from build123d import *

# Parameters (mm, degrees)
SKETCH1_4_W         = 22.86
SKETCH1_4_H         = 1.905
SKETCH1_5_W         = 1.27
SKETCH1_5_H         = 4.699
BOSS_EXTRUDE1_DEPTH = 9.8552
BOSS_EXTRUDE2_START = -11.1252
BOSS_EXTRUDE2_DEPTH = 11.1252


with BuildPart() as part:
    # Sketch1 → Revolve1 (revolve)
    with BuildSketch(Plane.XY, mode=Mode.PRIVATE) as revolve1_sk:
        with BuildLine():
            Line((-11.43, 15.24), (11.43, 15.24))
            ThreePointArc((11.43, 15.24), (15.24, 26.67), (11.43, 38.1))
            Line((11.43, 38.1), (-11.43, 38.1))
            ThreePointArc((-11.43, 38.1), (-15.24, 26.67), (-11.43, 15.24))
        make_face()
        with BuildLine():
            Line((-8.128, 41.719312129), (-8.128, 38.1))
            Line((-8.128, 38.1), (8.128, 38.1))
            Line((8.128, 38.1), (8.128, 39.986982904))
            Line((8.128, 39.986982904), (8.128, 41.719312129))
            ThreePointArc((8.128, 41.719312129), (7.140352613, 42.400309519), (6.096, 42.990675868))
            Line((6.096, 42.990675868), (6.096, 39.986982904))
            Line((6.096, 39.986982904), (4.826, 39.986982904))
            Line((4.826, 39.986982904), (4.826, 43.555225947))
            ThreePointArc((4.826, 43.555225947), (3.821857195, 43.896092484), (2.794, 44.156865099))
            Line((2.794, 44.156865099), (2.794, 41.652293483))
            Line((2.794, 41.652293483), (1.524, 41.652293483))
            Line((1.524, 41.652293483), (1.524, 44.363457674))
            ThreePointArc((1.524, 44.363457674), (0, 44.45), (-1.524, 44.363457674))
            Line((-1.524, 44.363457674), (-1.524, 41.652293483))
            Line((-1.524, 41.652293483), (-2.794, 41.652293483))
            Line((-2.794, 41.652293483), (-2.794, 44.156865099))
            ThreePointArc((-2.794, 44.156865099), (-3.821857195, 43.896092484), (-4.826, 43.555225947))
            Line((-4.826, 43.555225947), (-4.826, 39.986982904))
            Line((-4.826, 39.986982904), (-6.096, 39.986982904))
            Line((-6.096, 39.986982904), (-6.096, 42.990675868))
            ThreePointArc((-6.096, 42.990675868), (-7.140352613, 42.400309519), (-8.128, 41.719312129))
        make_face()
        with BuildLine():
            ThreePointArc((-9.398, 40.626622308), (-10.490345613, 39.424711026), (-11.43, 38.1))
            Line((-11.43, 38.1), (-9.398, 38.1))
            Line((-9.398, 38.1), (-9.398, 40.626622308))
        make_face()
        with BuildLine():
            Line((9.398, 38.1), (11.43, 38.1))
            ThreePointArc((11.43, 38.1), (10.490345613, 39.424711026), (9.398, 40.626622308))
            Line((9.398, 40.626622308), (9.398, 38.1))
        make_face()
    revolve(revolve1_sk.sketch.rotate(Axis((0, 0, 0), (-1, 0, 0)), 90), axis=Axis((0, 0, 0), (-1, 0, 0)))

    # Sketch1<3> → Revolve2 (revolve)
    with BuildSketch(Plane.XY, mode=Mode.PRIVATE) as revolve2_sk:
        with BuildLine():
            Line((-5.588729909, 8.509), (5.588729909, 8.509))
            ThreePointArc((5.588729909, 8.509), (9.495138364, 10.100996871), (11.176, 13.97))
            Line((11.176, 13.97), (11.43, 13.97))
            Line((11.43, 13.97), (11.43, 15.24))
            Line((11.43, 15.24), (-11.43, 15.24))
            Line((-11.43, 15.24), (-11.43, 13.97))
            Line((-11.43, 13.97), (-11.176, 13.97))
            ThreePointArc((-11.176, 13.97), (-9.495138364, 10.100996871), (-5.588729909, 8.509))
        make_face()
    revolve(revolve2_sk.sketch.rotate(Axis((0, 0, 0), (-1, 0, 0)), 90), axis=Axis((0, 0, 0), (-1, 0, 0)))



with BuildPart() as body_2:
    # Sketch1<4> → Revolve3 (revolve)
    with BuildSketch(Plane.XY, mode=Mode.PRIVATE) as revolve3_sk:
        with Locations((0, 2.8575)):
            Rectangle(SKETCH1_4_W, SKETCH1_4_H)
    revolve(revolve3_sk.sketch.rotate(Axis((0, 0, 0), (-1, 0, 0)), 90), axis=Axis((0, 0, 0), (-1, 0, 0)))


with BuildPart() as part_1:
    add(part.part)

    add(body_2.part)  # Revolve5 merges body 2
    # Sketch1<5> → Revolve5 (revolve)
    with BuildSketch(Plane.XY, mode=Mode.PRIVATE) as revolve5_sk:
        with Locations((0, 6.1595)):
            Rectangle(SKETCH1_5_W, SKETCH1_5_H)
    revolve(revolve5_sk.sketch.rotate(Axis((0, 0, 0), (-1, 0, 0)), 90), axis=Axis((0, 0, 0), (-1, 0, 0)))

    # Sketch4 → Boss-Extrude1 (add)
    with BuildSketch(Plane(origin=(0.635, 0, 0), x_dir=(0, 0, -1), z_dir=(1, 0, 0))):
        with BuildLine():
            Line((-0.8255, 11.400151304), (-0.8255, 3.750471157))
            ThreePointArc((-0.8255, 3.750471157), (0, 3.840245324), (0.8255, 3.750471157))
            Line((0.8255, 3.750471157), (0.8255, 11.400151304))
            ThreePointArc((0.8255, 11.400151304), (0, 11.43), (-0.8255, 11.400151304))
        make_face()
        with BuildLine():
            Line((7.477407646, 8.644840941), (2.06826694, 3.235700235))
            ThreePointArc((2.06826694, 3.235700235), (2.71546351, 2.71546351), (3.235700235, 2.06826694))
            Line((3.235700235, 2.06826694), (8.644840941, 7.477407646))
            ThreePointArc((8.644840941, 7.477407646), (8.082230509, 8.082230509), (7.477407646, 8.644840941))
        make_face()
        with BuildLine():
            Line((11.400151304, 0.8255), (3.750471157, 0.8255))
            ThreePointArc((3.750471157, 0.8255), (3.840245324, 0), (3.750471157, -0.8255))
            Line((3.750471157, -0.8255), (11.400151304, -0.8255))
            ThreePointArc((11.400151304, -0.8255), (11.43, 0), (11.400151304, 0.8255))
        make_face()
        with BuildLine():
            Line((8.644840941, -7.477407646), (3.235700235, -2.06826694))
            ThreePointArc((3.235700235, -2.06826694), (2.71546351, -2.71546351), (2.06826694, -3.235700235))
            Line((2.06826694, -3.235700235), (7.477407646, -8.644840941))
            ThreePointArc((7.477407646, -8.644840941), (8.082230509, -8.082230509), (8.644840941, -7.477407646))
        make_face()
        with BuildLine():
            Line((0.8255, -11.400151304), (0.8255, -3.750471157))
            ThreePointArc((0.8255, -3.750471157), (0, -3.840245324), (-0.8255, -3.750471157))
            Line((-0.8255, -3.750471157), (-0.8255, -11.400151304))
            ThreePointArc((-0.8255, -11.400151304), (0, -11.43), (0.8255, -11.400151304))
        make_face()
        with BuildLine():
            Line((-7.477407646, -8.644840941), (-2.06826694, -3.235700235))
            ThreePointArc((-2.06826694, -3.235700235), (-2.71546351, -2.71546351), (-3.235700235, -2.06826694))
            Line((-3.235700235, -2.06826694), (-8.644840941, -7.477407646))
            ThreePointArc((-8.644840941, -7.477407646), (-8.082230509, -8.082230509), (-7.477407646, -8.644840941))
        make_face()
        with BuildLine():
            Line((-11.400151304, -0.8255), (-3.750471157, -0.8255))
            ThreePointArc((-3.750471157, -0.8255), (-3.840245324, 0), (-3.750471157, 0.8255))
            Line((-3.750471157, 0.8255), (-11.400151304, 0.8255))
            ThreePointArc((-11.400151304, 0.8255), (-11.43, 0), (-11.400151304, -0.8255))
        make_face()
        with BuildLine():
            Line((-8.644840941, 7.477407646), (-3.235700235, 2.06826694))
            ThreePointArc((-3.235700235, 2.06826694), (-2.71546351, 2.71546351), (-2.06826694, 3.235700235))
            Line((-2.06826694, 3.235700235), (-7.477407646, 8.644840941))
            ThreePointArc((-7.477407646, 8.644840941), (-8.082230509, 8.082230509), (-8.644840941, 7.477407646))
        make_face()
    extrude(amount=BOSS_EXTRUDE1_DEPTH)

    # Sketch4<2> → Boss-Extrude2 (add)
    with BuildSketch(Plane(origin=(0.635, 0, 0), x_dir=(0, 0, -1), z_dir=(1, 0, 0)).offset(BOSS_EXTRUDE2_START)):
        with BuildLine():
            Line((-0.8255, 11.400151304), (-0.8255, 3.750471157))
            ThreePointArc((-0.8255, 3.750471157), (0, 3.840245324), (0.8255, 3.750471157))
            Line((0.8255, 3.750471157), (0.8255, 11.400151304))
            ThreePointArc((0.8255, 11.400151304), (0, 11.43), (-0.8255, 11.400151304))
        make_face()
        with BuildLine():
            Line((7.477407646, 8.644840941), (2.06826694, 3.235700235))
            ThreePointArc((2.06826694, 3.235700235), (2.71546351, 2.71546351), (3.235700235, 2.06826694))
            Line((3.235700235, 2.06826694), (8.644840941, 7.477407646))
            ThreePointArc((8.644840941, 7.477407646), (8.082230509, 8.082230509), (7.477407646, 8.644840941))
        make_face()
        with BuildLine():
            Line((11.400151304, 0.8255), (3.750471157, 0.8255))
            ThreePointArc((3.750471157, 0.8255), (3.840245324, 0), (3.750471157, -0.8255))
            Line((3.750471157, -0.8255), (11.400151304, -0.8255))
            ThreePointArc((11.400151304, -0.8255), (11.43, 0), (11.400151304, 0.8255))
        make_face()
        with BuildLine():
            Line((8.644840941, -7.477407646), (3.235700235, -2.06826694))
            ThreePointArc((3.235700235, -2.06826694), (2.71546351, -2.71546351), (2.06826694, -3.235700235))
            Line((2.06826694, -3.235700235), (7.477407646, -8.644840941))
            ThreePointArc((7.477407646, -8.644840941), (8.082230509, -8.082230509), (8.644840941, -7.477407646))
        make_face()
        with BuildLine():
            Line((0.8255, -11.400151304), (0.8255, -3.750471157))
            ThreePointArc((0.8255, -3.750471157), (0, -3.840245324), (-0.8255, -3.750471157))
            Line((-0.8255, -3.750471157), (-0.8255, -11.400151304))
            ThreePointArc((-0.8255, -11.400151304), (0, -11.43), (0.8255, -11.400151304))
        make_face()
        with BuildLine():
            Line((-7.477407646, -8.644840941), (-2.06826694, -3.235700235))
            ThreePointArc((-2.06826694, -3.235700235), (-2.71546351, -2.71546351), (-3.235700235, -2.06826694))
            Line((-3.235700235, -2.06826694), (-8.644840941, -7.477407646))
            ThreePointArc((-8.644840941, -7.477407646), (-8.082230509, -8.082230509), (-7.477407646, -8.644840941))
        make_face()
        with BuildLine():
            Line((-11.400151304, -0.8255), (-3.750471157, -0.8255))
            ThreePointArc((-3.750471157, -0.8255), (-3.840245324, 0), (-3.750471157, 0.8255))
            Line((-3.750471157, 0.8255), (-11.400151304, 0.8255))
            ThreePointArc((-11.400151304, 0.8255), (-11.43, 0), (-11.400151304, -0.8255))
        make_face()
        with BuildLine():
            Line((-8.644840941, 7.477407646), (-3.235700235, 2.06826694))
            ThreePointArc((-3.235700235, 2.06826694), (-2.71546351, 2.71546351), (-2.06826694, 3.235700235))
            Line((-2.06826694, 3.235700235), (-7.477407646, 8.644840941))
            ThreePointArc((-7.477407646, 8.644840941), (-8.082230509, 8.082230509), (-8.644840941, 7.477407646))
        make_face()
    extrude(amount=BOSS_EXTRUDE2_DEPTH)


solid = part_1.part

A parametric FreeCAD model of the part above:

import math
import FreeCAD as App
import Part
import Sketcher
from FreeCAD import Vector
Q = App.Units.Quantity

doc = App.newDocument("Part")
body = doc.addObject("PartDesign::Body", "Body")

# Sketch on XY plane
sketch1 = body.newObject("Sketcher::SketchObject", "Sketch")
sketch1.AttachmentSupport = (doc.getObject("XY_Plane"), [""])
sketch1.MapMode = "FlatFace"
sketch1.addGeometry([
    Part.LineSegment(Vector(-11.43, 15.24, 0), Vector(11.43, 15.24, 0)),  # 0
    Part.ArcOfCircle(Part.Circle(Vector(-3.81, 26.67, 0), Vector(0, 0, 1), 19.05), math.radians(-36.869898), math.radians(36.869898)),  # 1
    Part.ArcOfCircle(Part.Circle(Vector(0, 30.988, 0), Vector(0, 0, 1), 13.462), math.radians(31.890792), math.radians(45.724178)),  # 2
    Part.LineSegment(Vector(9.398, 40.626622, 0), Vector(9.398, 38.1, 0)),  # 3
    Part.LineSegment(Vector(9.398, 38.1, 0), Vector(8.128, 38.1, 0)),  # 4
    Part.LineSegment(Vector(8.128, 38.1, 0), Vector(8.128, 41.719312, 0)),  # 5
    Part.ArcOfCircle(Part.Circle(Vector(0, 30.988, 0), Vector(0, 0, 1), 13.462), math.radians(52.859359), math.radians(63.074589)),  # 6
    Part.LineSegment(Vector(6.096, 42.990676, 0), Vector(6.096, 39.986983, 0)),  # 7
    Part.LineSegment(Vector(6.096, 39.986983, 0), Vector(4.826, 39.986983, 0)),  # 8
    Part.LineSegment(Vector(4.826, 39.986983, 0), Vector(4.826, 43.555226, 0)),  # 9
    Part.ArcOfCircle(Part.Circle(Vector(0, 30.988, 0), Vector(0, 0, 1), 13.462), math.radians(68.992475), math.radians(78.021351)),  # 10
    Part.LineSegment(Vector(2.794, 44.156865, 0), Vector(2.794, 41.652293, 0)),  # 11
    Part.LineSegment(Vector(2.794, 41.652293, 0), Vector(1.524, 41.652293, 0)),  # 12
    Part.LineSegment(Vector(1.524, 41.652293, 0), Vector(1.524, 44.363458, 0)),  # 13
    Part.ArcOfCircle(Part.Circle(Vector(0, 30.988, 0), Vector(0, 0, 1), 13.462), math.radians(83.49975), math.radians(96.50025)),  # 14
    Part.LineSegment(Vector(-1.524, 44.363458, 0), Vector(-1.524, 41.652293, 0)),  # 15
    Part.LineSegment(Vector(-1.524, 41.652293, 0), Vector(-2.794, 41.652293, 0)),  # 16
    Part.LineSegment(Vector(-2.794, 41.652293, 0), Vector(-2.794, 44.156865, 0)),  # 17
    Part.ArcOfCircle(Part.Circle(Vector(0, 30.988, 0), Vector(0, 0, 1), 13.462), math.radians(101.978649), math.radians(111.007525)),  # 18
    Part.LineSegment(Vector(-4.826, 43.555226, 0), Vector(-4.826, 39.986983, 0)),  # 19
    Part.LineSegment(Vector(-4.826, 39.986983, 0), Vector(-6.096, 39.986983, 0)),  # 20
    Part.LineSegment(Vector(-6.096, 39.986983, 0), Vector(-6.096, 42.990676, 0)),  # 21
    Part.ArcOfCircle(Part.Circle(Vector(0, 30.988, 0), Vector(0, 0, 1), 13.462), math.radians(116.925411), math.radians(127.140641)),  # 22
    Part.LineSegment(Vector(-8.128, 41.719312, 0), Vector(-8.128, 38.1, 0)),  # 23
    Part.LineSegment(Vector(-8.128, 38.1, 0), Vector(-9.398, 38.1, 0)),  # 24
    Part.LineSegment(Vector(-9.398, 38.1, 0), Vector(-9.398, 40.626622, 0)),  # 25
    Part.ArcOfCircle(Part.Circle(Vector(0, 30.988, 0), Vector(0, 0, 1), 13.462), math.radians(134.275822), math.radians(148.109208)),  # 26
    Part.ArcOfCircle(Part.Circle(Vector(3.81, 26.67, 0), Vector(0, 0, 1), 19.05), math.radians(143.130102), math.radians(216.869898)),  # 27
], False)
sketch1.addConstraint([
    Sketcher.Constraint("Coincident", 0, 2, 1, 1),
    Sketcher.Constraint("Coincident", 1, 2, 2, 1),
    Sketcher.Constraint("Coincident", 2, 2, 3, 1),
    Sketcher.Constraint("Coincident", 3, 2, 4, 1),
    Sketcher.Constraint("Coincident", 4, 2, 5, 1),
    Sketcher.Constraint("Coincident", 5, 2, 6, 1),
    Sketcher.Constraint("Coincident", 6, 2, 7, 1),
    Sketcher.Constraint("Coincident", 7, 2, 8, 1),
    Sketcher.Constraint("Coincident", 8, 2, 9, 1),
    Sketcher.Constraint("Coincident", 9, 2, 10, 1),
    Sketcher.Constraint("Coincident", 10, 2, 11, 1),
    Sketcher.Constraint("Coincident", 11, 2, 12, 1),
    Sketcher.Constraint("Coincident", 12, 2, 13, 1),
    Sketcher.Constraint("Coincident", 13, 2, 14, 1),
    Sketcher.Constraint("Coincident", 14, 2, 15, 1),
    Sketcher.Constraint("Coincident", 15, 2, 16, 1),
    Sketcher.Constraint("Coincident", 16, 2, 17, 1),
    Sketcher.Constraint("Coincident", 17, 2, 18, 1),
    Sketcher.Constraint("Coincident", 18, 2, 19, 1),
    Sketcher.Constraint("Coincident", 19, 2, 20, 1),
    Sketcher.Constraint("Coincident", 20, 2, 21, 1),
    Sketcher.Constraint("Coincident", 21, 2, 22, 1),
    Sketcher.Constraint("Coincident", 22, 2, 23, 1),
    Sketcher.Constraint("Coincident", 23, 2, 24, 1),
    Sketcher.Constraint("Coincident", 24, 2, 25, 1),
    Sketcher.Constraint("Coincident", 25, 2, 26, 1),
    Sketcher.Constraint("Coincident", 26, 2, 27, 1),
    Sketcher.Constraint("Coincident", 27, 2, 0, 1),
    Sketcher.Constraint("Horizontal", 0),
    Sketcher.Constraint("Vertical", 3),
    Sketcher.Constraint("Horizontal", 4),
    Sketcher.Constraint("Vertical", 5),
    Sketcher.Constraint("Vertical", 7),
    Sketcher.Constraint("Horizontal", 8),
    Sketcher.Constraint("Vertical", 9),
    Sketcher.Constraint("Vertical", 11),
    Sketcher.Constraint("Horizontal", 12),
    Sketcher.Constraint("Vertical", 13),
    Sketcher.Constraint("Vertical", 15),
    Sketcher.Constraint("Horizontal", 16),
    Sketcher.Constraint("Vertical", 17),
    Sketcher.Constraint("Vertical", 19),
    Sketcher.Constraint("Horizontal", 20),
    Sketcher.Constraint("Vertical", 21),
    Sketcher.Constraint("Vertical", 23),
    Sketcher.Constraint("Horizontal", 24),
    Sketcher.Constraint("Vertical", 25),
    Sketcher.Constraint("Coincident", 6, 3, 2, 3),
    Sketcher.Constraint("Coincident", 10, 3, 2, 3),
    Sketcher.Constraint("Coincident", 14, 3, 2, 3),
    Sketcher.Constraint("Coincident", 18, 3, 2, 3),
    Sketcher.Constraint("Coincident", 22, 3, 2, 3),
    Sketcher.Constraint("Coincident", 26, 3, 2, 3),
    Sketcher.Constraint("Equal", 2, 6),
    Sketcher.Constraint("Equal", 6, 10),
    Sketcher.Constraint("Equal", 10, 14),
    Sketcher.Constraint("Equal", 14, 18),
    Sketcher.Constraint("Equal", 18, 22),
    Sketcher.Constraint("Equal", 22, 26),
    Sketcher.Constraint("Equal", 1, 27),
    Sketcher.Constraint("Symmetric", 1, 3, 27, 3, -2),
    Sketcher.Constraint("Symmetric", 13, 2, 14, 2, -2),
    Sketcher.Constraint("Symmetric", 11, 2, 16, 2, -2),
    Sketcher.Constraint("Symmetric", 8, 2, 19, 2, -2),
    Sketcher.Constraint("Symmetric", 4, 2, 23, 2, -2),
    Sketcher.Constraint("Horizontal", 1, 2, 3, 2),
    Sketcher.Constraint("Horizontal", 6, 2, 21, 2),
    Sketcher.Constraint("Horizontal", 2, 2, 25, 2),
    Sketcher.Constraint("Vertical", 0, 2, 1, 2),
    Sketcher.Constraint("Equal", 4, 8),
    Sketcher.Constraint("Equal", 8, 12),
    Sketcher.Constraint("Radius", 1, Q("0.75 in")),
    Sketcher.Constraint("Radius", 2, Q("0.53 in")),
    Sketcher.Constraint("DistanceX", 0, 1, 0, 2, Q("0.9 in")),
    Sketcher.Constraint("DistanceX", 4, 2, 4, 1, Q("0.05 in")),
    Sketcher.Constraint("DistanceY", -1, 1, 0, 2, Q("0.6 in")),
    Sketcher.Constraint("DistanceY", -1, 1, 1, 2, Q("1.5 in")),
    Sketcher.Constraint("DistanceX", -1, 1, 2, 2, Q("0.37 in")),
    Sketcher.Constraint("DistanceX", -1, 1, 6, 2, Q("0.24 in")),
    Sketcher.Constraint("DistanceX", -1, 1, 10, 2, Q("0.11 in")),
    Sketcher.Constraint("DistanceY", 11, 2, 11, 1, Q("2.504572 mm")),
    Sketcher.Constraint("DistanceY", 7, 2, 7, 1, Q("3.003693 mm")),
])
revolution = body.newObject("PartDesign::Revolution", "Revolution")
revolution.Profile = sketch1
revolution.ReferenceAxis = (sketch1, ["H_Axis"])
revolution.Angle = 360

# Sketch on XY plane
sketch2 = body.newObject("Sketcher::SketchObject", "Sketch001")
sketch2.AttachmentSupport = (doc.getObject("XY_Plane"), [""])
sketch2.MapMode = "FlatFace"
sketch2.addGeometry([
    Part.LineSegment(Vector(-5.58873, 8.509, 0), Vector(5.58873, 8.509, 0)),  # 0
    Part.ArcOfCircle(Part.Circle(Vector(5.58873, 14.09773, 0), Vector(0, 0, 1), 5.58873), math.radians(-90), math.radians(-1.309604)),  # 1
    Part.LineSegment(Vector(11.176, 13.97, 0), Vector(11.43, 13.97, 0)),  # 2
    Part.LineSegment(Vector(11.43, 13.97, 0), Vector(11.43, 15.24, 0)),  # 3
    Part.LineSegment(Vector(11.43, 15.24, 0), Vector(-11.43, 15.24, 0)),  # 4
    Part.LineSegment(Vector(-11.43, 15.24, 0), Vector(-11.43, 13.97, 0)),  # 5
    Part.LineSegment(Vector(-11.43, 13.97, 0), Vector(-11.176, 13.97, 0)),  # 6
    Part.ArcOfCircle(Part.Circle(Vector(-5.58873, 14.09773, 0), Vector(0, 0, 1), 5.58873), math.radians(-178.690396), math.radians(-90)),  # 7
], False)
sketch2.addConstraint([
    Sketcher.Constraint("Tangent", 0, 2, 1, 1),
    Sketcher.Constraint("Coincident", 1, 2, 2, 1),
    Sketcher.Constraint("Coincident", 2, 2, 3, 1),
    Sketcher.Constraint("Coincident", 3, 2, 4, 1),
    Sketcher.Constraint("Coincident", 4, 2, 5, 1),
    Sketcher.Constraint("Coincident", 5, 2, 6, 1),
    Sketcher.Constraint("Coincident", 6, 2, 7, 1),
    Sketcher.Constraint("Tangent", 7, 2, 0, 1),
    Sketcher.Constraint("Horizontal", 0),
    Sketcher.Constraint("Horizontal", 2),
    Sketcher.Constraint("Vertical", 3),
    Sketcher.Constraint("Horizontal", 4),
    Sketcher.Constraint("Vertical", 5),
    Sketcher.Constraint("Horizontal", 6),
    Sketcher.Constraint("Equal", 1, 7),
    Sketcher.Constraint("Symmetric", 2, 2, 5, 2, -2),
    Sketcher.Constraint("Equal", 2, 6),
    Sketcher.Constraint("DistanceX", 4, 2, 4, 1, Q("0.9 in")),
    Sketcher.Constraint("DistanceX", 2, 1, 2, 2, Q("0.01 in")),
    Sketcher.Constraint("DistanceY", 3, 1, 3, 2, Q("0.05 in")),
    Sketcher.Constraint("DistanceY", -1, 1, 3, 2, Q("0.6 in")),
    Sketcher.Constraint("DistanceY", -1, 1, 0, 2, Q("0.335 in")),
    Sketcher.Constraint("Radius", 1, Q("5.58873 mm")),
])
revolution2 = body.newObject("PartDesign::Revolution", "Revolution001")
revolution2.Profile = sketch2
revolution2.ReferenceAxis = (sketch2, ["H_Axis"])
revolution2.Angle = 360
body2 = doc.addObject("PartDesign::Body", "Body001")

# Sketch on XY plane
sketch3 = body2.newObject("Sketcher::SketchObject", "Sketch002")
sketch3.AttachmentSupport = (doc.getObject("XY_Plane001"), [""])
sketch3.MapMode = "FlatFace"
sketch3.addGeometry([
    Part.LineSegment(Vector(-11.43, 3.81, 0), Vector(-11.43, 1.905, 0)),
    Part.LineSegment(Vector(-11.43, 1.905, 0), Vector(11.43, 1.905, 0)),
    Part.LineSegment(Vector(11.43, 1.905, 0), Vector(11.43, 3.81, 0)),
    Part.LineSegment(Vector(11.43, 3.81, 0), Vector(-11.43, 3.81, 0)),
], False)
sketch3.addConstraint([
    Sketcher.Constraint("Coincident", 0, 2, 1, 1),
    Sketcher.Constraint("Coincident", 1, 2, 2, 1),
    Sketcher.Constraint("Coincident", 2, 2, 3, 1),
    Sketcher.Constraint("Coincident", 3, 2, 0, 1),
    Sketcher.Constraint("Vertical", 0),
    Sketcher.Constraint("Horizontal", 1),
    Sketcher.Constraint("Vertical", 2),
    Sketcher.Constraint("Horizontal", 3),
    Sketcher.Constraint("DistanceX", 1, 1, 1, 2, Q("0.9 in")),
    Sketcher.Constraint("DistanceY", 0, 2, 0, 1, Q("0.075 in")),
    Sketcher.Constraint("DistanceX", 0, 2, -1, 1, Q("0.45 in")),
    Sketcher.Constraint("DistanceY", -1, 1, 2, 2, Q("0.15 in")),
])
revolution3 = body2.newObject("PartDesign::Revolution", "Revolution002")
revolution3.Profile = sketch3
revolution3.ReferenceAxis = (sketch3, ["H_Axis"])
revolution3.Angle = 360
body.AllowCompound = True
doc.recompute()

boolean = body.newObject("PartDesign::Boolean", "Boolean")
boolean.Type = "Fuse"
boolean.addObjects([body2])

# Sketch on XY plane
sketch4 = body.newObject("Sketcher::SketchObject", "Sketch003")
sketch4.AttachmentSupport = (doc.getObject("XY_Plane"), [""])
sketch4.MapMode = "FlatFace"
sketch4.addGeometry([
    Part.LineSegment(Vector(-0.635, 8.509, 0), Vector(-0.635, 3.81, 0)),
    Part.LineSegment(Vector(-0.635, 3.81, 0), Vector(0.635, 3.81, 0)),
    Part.LineSegment(Vector(0.635, 3.81, 0), Vector(0.635, 8.509, 0)),
    Part.LineSegment(Vector(0.635, 8.509, 0), Vector(-0.635, 8.509, 0)),
], False)
sketch4.addConstraint([
    Sketcher.Constraint("Coincident", 0, 2, 1, 1),
    Sketcher.Constraint("Coincident", 1, 2, 2, 1),
    Sketcher.Constraint("Coincident", 2, 2, 3, 1),
    Sketcher.Constraint("Coincident", 3, 2, 0, 1),
    Sketcher.Constraint("Vertical", 0),
    Sketcher.Constraint("Horizontal", 1),
    Sketcher.Constraint("Vertical", 2),
    Sketcher.Constraint("Horizontal", 3),
    Sketcher.Constraint("DistanceX", 1, 1, 1, 2, Q("0.05 in")),
    Sketcher.Constraint("DistanceY", 0, 2, 0, 1, Q("0.185 in")),
    Sketcher.Constraint("DistanceY", -1, 1, 0, 2, Q("0.15 in")),
    Sketcher.Constraint("DistanceX", 0, 2, -1, 1, Q("0.025 in")),
])
revolution4 = body.newObject("PartDesign::Revolution", "Revolution003")
revolution4.Profile = sketch4
revolution4.ReferenceAxis = (sketch4, ["H_Axis"])
revolution4.Angle = 360

# Sketch on YZ plane
sketch5 = body.newObject("Sketcher::SketchObject", "Sketch004")
sketch5.AttachmentSupport = (doc.getObject("YZ_Plane"), [""])
sketch5.MapMode = "FlatFace"
sketch5.AttachmentOffset = App.Placement(Vector(0, 0, 0.025 * 25.4), App.Rotation())
sketch5.addGeometry([
    Part.LineSegment(Vector(11.400151, 0.8255, 0), Vector(3.750471, 0.8255, 0)),  # 0
    Part.ArcOfCircle(Part.Circle(Vector(0, 0, 0), Vector(0, 0, 1), 3.840245), math.radians(-12.413194), math.radians(12.413194)),  # 1
    Part.LineSegment(Vector(3.750471, -0.8255, 0), Vector(11.400151, -0.8255, 0)),  # 2
    Part.ArcOfCircle(Part.Circle(Vector(0, 0, 0), Vector(0, 0, 1), 11.43), math.radians(-4.141634), math.radians(4.141634)),  # 3
    Part.LineSegment(Vector(8.644841, -7.477408, 0), Vector(3.2357, -2.068267, 0)),  # 4
    Part.ArcOfCircle(Part.Circle(Vector(0, 0, 0), Vector(0, 0, 1), 3.840245), math.radians(-57.413194), math.radians(-32.586806)),  # 5
    Part.LineSegment(Vector(2.068267, -3.2357, 0), Vector(7.477408, -8.644841, 0)),  # 6
    Part.ArcOfCircle(Part.Circle(Vector(0, 0, 0), Vector(0, 0, 1), 11.43), math.radians(-49.141634), math.radians(-40.858366)),  # 7
    Part.LineSegment(Vector(0.8255, -11.400151, 0), Vector(0.8255, -3.750471, 0)),  # 8
    Part.ArcOfCircle(Part.Circle(Vector(0, 0, 0), Vector(0, 0, 1), 3.840245), math.radians(-102.413194), math.radians(-77.586806)),  # 9
    Part.LineSegment(Vector(-0.8255, -3.750471, 0), Vector(-0.8255, -11.400151, 0)),  # 10
    Part.ArcOfCircle(Part.Circle(Vector(0, 0, 0), Vector(0, 0, 1), 11.43), math.radians(-94.141634), math.radians(-85.858366)),  # 11
    Part.LineSegment(Vector(-7.477408, -8.644841, 0), Vector(-2.068267, -3.2357, 0)),  # 12
    Part.ArcOfCircle(Part.Circle(Vector(0, 0, 0), Vector(0, 0, 1), 3.840245), math.radians(-147.413194), math.radians(-122.586806)),  # 13
    Part.LineSegment(Vector(-3.2357, -2.068267, 0), Vector(-8.644841, -7.477408, 0)),  # 14
    Part.ArcOfCircle(Part.Circle(Vector(0, 0, 0), Vector(0, 0, 1), 11.43), math.radians(-139.141634), math.radians(-130.858366)),  # 15
    Part.LineSegment(Vector(-11.400151, -0.8255, 0), Vector(-3.750471, -0.8255, 0)),  # 16
    Part.ArcOfCircle(Part.Circle(Vector(0, 0, 0), Vector(0, 0, 1), 3.840245), math.radians(167.586806), math.radians(192.413194)),  # 17
    Part.LineSegment(Vector(-3.750471, 0.8255, 0), Vector(-11.400151, 0.8255, 0)),  # 18
    Part.ArcOfCircle(Part.Circle(Vector(0, 0, 0), Vector(0, 0, 1), 11.43), math.radians(175.858366), math.radians(184.141634)),  # 19
    Part.LineSegment(Vector(-8.644841, 7.477408, 0), Vector(-3.2357, 2.068267, 0)),  # 20
    Part.ArcOfCircle(Part.Circle(Vector(0, 0, 0), Vector(0, 0, 1), 3.840245), math.radians(122.586806), math.radians(147.413194)),  # 21
    Part.LineSegment(Vector(-2.068267, 3.2357, 0), Vector(-7.477408, 8.644841, 0)),  # 22
    Part.ArcOfCircle(Part.Circle(Vector(0, 0, 0), Vector(0, 0, 1), 11.43), math.radians(130.858366), math.radians(139.141634)),  # 23
    Part.LineSegment(Vector(-0.8255, 11.400151, 0), Vector(-0.8255, 3.750471, 0)),  # 24
    Part.ArcOfCircle(Part.Circle(Vector(0, 0, 0), Vector(0, 0, 1), 3.840245), math.radians(77.586806), math.radians(102.413194)),  # 25
    Part.LineSegment(Vector(0.8255, 3.750471, 0), Vector(0.8255, 11.400151, 0)),  # 26
    Part.ArcOfCircle(Part.Circle(Vector(0, 0, 0), Vector(0, 0, 1), 11.43), math.radians(85.858366), math.radians(94.141634)),  # 27
    Part.LineSegment(Vector(7.477408, 8.644841, 0), Vector(2.068267, 3.2357, 0)),  # 28
    Part.ArcOfCircle(Part.Circle(Vector(0, 0, 0), Vector(0, 0, 1), 3.840245), math.radians(32.586806), math.radians(57.413194)),  # 29
    Part.LineSegment(Vector(3.2357, 2.068267, 0), Vector(8.644841, 7.477408, 0)),  # 30
    Part.ArcOfCircle(Part.Circle(Vector(0, 0, 0), Vector(0, 0, 1), 11.43), math.radians(40.858366), math.radians(49.141634)),  # 31
], False)
sketch5.addConstraint([
    Sketcher.Constraint("Coincident", 0, 2, 1, 2),
    Sketcher.Constraint("Coincident", 1, 1, 2, 1),
    Sketcher.Constraint("Coincident", 2, 2, 3, 1),
    Sketcher.Constraint("Coincident", 3, 2, 0, 1),
    Sketcher.Constraint("Coincident", 4, 2, 5, 2),
    Sketcher.Constraint("Coincident", 5, 1, 6, 1),
    Sketcher.Constraint("Coincident", 6, 2, 7, 1),
    Sketcher.Constraint("Coincident", 7, 2, 4, 1),
    Sketcher.Constraint("Coincident", 8, 2, 9, 2),
    Sketcher.Constraint("Coincident", 9, 1, 10, 1),
    Sketcher.Constraint("Coincident", 10, 2, 11, 1),
    Sketcher.Constraint("Coincident", 11, 2, 8, 1),
    Sketcher.Constraint("Coincident", 12, 2, 13, 2),
    Sketcher.Constraint("Coincident", 13, 1, 14, 1),
    Sketcher.Constraint("Coincident", 14, 2, 15, 1),
    Sketcher.Constraint("Coincident", 15, 2, 12, 1),
    Sketcher.Constraint("Coincident", 16, 2, 17, 2),
    Sketcher.Constraint("Coincident", 17, 1, 18, 1),
    Sketcher.Constraint("Coincident", 18, 2, 19, 1),
    Sketcher.Constraint("Coincident", 19, 2, 16, 1),
    Sketcher.Constraint("Coincident", 20, 2, 21, 2),
    Sketcher.Constraint("Coincident", 21, 1, 22, 1),
    Sketcher.Constraint("Coincident", 22, 2, 23, 1),
    Sketcher.Constraint("Coincident", 23, 2, 20, 1),
    Sketcher.Constraint("Coincident", 24, 2, 25, 2),
    Sketcher.Constraint("Coincident", 25, 1, 26, 1),
    Sketcher.Constraint("Coincident", 26, 2, 27, 1),
    Sketcher.Constraint("Coincident", 27, 2, 24, 1),
    Sketcher.Constraint("Coincident", 28, 2, 29, 2),
    Sketcher.Constraint("Coincident", 29, 1, 30, 1),
    Sketcher.Constraint("Coincident", 30, 2, 31, 1),
    Sketcher.Constraint("Coincident", 31, 2, 28, 1),
    Sketcher.Constraint("Horizontal", 0),
    Sketcher.Constraint("Horizontal", 2),
    Sketcher.Constraint("Vertical", 8),
    Sketcher.Constraint("Vertical", 10),
    Sketcher.Constraint("Horizontal", 16),
    Sketcher.Constraint("Horizontal", 18),
    Sketcher.Constraint("Vertical", 24),
    Sketcher.Constraint("Vertical", 26),
    Sketcher.Constraint("Coincident", 1, 3, -1, 1),
    Sketcher.Constraint("Coincident", 3, 3, -1, 1),
    Sketcher.Constraint("Coincident", 5, 3, -1, 1),
    Sketcher.Constraint("Coincident", 7, 3, -1, 1),
    Sketcher.Constraint("Coincident", 9, 3, -1, 1),
    Sketcher.Constraint("Coincident", 11, 3, -1, 1),
    Sketcher.Constraint("Coincident", 13, 3, -1, 1),
    Sketcher.Constraint("Coincident", 15, 3, -1, 1),
    Sketcher.Constraint("Coincident", 17, 3, -1, 1),
    Sketcher.Constraint("Coincident", 19, 3, -1, 1),
    Sketcher.Constraint("Coincident", 21, 3, -1, 1),
    Sketcher.Constraint("Coincident", 23, 3, -1, 1),
    Sketcher.Constraint("Coincident", 25, 3, -1, 1),
    Sketcher.Constraint("Coincident", 27, 3, -1, 1),
    Sketcher.Constraint("Coincident", 29, 3, -1, 1),
    Sketcher.Constraint("Coincident", 31, 3, -1, 1),
    Sketcher.Constraint("Equal", 1, 5),
    Sketcher.Constraint("Equal", 3, 7),
    Sketcher.Constraint("Equal", 5, 9),
    Sketcher.Constraint("Equal", 7, 11),
    Sketcher.Constraint("Equal", 9, 13),
    Sketcher.Constraint("Equal", 11, 15),
    Sketcher.Constraint("Equal", 13, 17),
    Sketcher.Constraint("Equal", 15, 19),
    Sketcher.Constraint("Equal", 17, 21),
    Sketcher.Constraint("Equal", 19, 23),
    Sketcher.Constraint("Equal", 21, 25),
    Sketcher.Constraint("Equal", 23, 27),
    Sketcher.Constraint("Equal", 25, 29),
    Sketcher.Constraint("Equal", 27, 31),
    Sketcher.Constraint("Parallel", 4, 6),
    Sketcher.Constraint("Perpendicular", 6, 12),
    Sketcher.Constraint("Parallel", 12, 14),
    Sketcher.Constraint("Perpendicular", 14, 20),
    Sketcher.Constraint("Parallel", 20, 22),
    Sketcher.Constraint("Perpendicular", 22, 28),
    Sketcher.Constraint("Parallel", 28, 30),
    Sketcher.Constraint("Horizontal", 8, 2, 9, 1),
    Sketcher.Constraint("Horizontal", 5, 1, 12, 2),
    Sketcher.Constraint("Horizontal", 4, 2, 13, 1),
    Sketcher.Constraint("Horizontal", 7, 2, 14, 2),
    Sketcher.Constraint("Horizontal", 2, 2, 16, 2),
    Sketcher.Constraint("Horizontal", 3, 2, 17, 1),
    Sketcher.Constraint("Horizontal", 24, 2, 25, 1),
    Sketcher.Constraint("Horizontal", 21, 1, 28, 2),
    Sketcher.Constraint("Horizontal", 20, 2, 29, 1),
    Sketcher.Constraint("Vertical", 0, 2, 1, 1),
    Sketcher.Constraint("Vertical", 13, 1, 20, 2),
    Sketcher.Constraint("Vertical", 12, 2, 21, 1),
    Sketcher.Constraint("Vertical", 10, 2, 24, 2),
    Sketcher.Constraint("Equal", 18, 8),
    Sketcher.Constraint("Equal", 4, 6),
    Sketcher.Constraint("Radius", 3, Q("0.45 in")),
    Sketcher.Constraint("DistanceY", 1, 1, 0, 2, Q("0.065 in")),
    Sketcher.Constraint("Radius", 1, Q("3.840245 mm")),
    Sketcher.Constraint("DistanceX", -1, 1, 4, 2, Q("3.2357 mm")),
])
pad1 = body.newObject("PartDesign::Pad", "Pad")
pad1.Profile = sketch5
pad1.Length = Q("0.388 in")

# Sketch on YZ plane
sketch6 = body.newObject("Sketcher::SketchObject", "Sketch005")
sketch6.AttachmentSupport = (doc.getObject("YZ_Plane"), [""])
sketch6.MapMode = "FlatFace"
sketch6.AttachmentOffset = App.Placement(Vector(0, 0, -0.413 * 25.4), App.Rotation())
sketch6.addGeometry([
    Part.LineSegment(Vector(11.400151, 0.8255, 0), Vector(3.750471, 0.8255, 0)),  # 0
    Part.ArcOfCircle(Part.Circle(Vector(0, 0, 0), Vector(0, 0, 1), 3.840245), math.radians(-12.413194), math.radians(12.413194)),  # 1
    Part.LineSegment(Vector(3.750471, -0.8255, 0), Vector(11.400151, -0.8255, 0)),  # 2
    Part.ArcOfCircle(Part.Circle(Vector(0, 0, 0), Vector(0, 0, 1), 11.43), math.radians(-4.141634), math.radians(4.141634)),  # 3
    Part.LineSegment(Vector(8.644841, -7.477408, 0), Vector(3.2357, -2.068267, 0)),  # 4
    Part.ArcOfCircle(Part.Circle(Vector(0, 0, 0), Vector(0, 0, 1), 3.840245), math.radians(-57.413194), math.radians(-32.586806)),  # 5
    Part.LineSegment(Vector(2.068267, -3.2357, 0), Vector(7.477408, -8.644841, 0)),  # 6
    Part.ArcOfCircle(Part.Circle(Vector(0, 0, 0), Vector(0, 0, 1), 11.43), math.radians(-49.141634), math.radians(-40.858366)),  # 7
    Part.LineSegment(Vector(0.8255, -11.400151, 0), Vector(0.8255, -3.750471, 0)),  # 8
    Part.ArcOfCircle(Part.Circle(Vector(0, 0, 0), Vector(0, 0, 1), 3.840245), math.radians(-102.413194), math.radians(-77.586806)),  # 9
    Part.LineSegment(Vector(-0.8255, -3.750471, 0), Vector(-0.8255, -11.400151, 0)),  # 10
    Part.ArcOfCircle(Part.Circle(Vector(0, 0, 0), Vector(0, 0, 1), 11.43), math.radians(-94.141634), math.radians(-85.858366)),  # 11
    Part.LineSegment(Vector(-7.477408, -8.644841, 0), Vector(-2.068267, -3.2357, 0)),  # 12
    Part.ArcOfCircle(Part.Circle(Vector(0, 0, 0), Vector(0, 0, 1), 3.840245), math.radians(-147.413194), math.radians(-122.586806)),  # 13
    Part.LineSegment(Vector(-3.2357, -2.068267, 0), Vector(-8.644841, -7.477408, 0)),  # 14
    Part.ArcOfCircle(Part.Circle(Vector(0, 0, 0), Vector(0, 0, 1), 11.43), math.radians(-139.141634), math.radians(-130.858366)),  # 15
    Part.LineSegment(Vector(-11.400151, -0.8255, 0), Vector(-3.750471, -0.8255, 0)),  # 16
    Part.ArcOfCircle(Part.Circle(Vector(0, 0, 0), Vector(0, 0, 1), 3.840245), math.radians(167.586806), math.radians(192.413194)),  # 17
    Part.LineSegment(Vector(-3.750471, 0.8255, 0), Vector(-11.400151, 0.8255, 0)),  # 18
    Part.ArcOfCircle(Part.Circle(Vector(0, 0, 0), Vector(0, 0, 1), 11.43), math.radians(175.858366), math.radians(184.141634)),  # 19
    Part.LineSegment(Vector(-8.644841, 7.477408, 0), Vector(-3.2357, 2.068267, 0)),  # 20
    Part.ArcOfCircle(Part.Circle(Vector(0, 0, 0), Vector(0, 0, 1), 3.840245), math.radians(122.586806), math.radians(147.413194)),  # 21
    Part.LineSegment(Vector(-2.068267, 3.2357, 0), Vector(-7.477408, 8.644841, 0)),  # 22
    Part.ArcOfCircle(Part.Circle(Vector(0, 0, 0), Vector(0, 0, 1), 11.43), math.radians(130.858366), math.radians(139.141634)),  # 23
    Part.LineSegment(Vector(-0.8255, 11.400151, 0), Vector(-0.8255, 3.750471, 0)),  # 24
    Part.ArcOfCircle(Part.Circle(Vector(0, 0, 0), Vector(0, 0, 1), 3.840245), math.radians(77.586806), math.radians(102.413194)),  # 25
    Part.LineSegment(Vector(0.8255, 3.750471, 0), Vector(0.8255, 11.400151, 0)),  # 26
    Part.ArcOfCircle(Part.Circle(Vector(0, 0, 0), Vector(0, 0, 1), 11.43), math.radians(85.858366), math.radians(94.141634)),  # 27
    Part.LineSegment(Vector(7.477408, 8.644841, 0), Vector(2.068267, 3.2357, 0)),  # 28
    Part.ArcOfCircle(Part.Circle(Vector(0, 0, 0), Vector(0, 0, 1), 3.840245), math.radians(32.586806), math.radians(57.413194)),  # 29
    Part.LineSegment(Vector(3.2357, 2.068267, 0), Vector(8.644841, 7.477408, 0)),  # 30
    Part.ArcOfCircle(Part.Circle(Vector(0, 0, 0), Vector(0, 0, 1), 11.43), math.radians(40.858366), math.radians(49.141634)),  # 31
], False)
sketch6.addConstraint([
    Sketcher.Constraint("Coincident", 0, 2, 1, 2),
    Sketcher.Constraint("Coincident", 1, 1, 2, 1),
    Sketcher.Constraint("Coincident", 2, 2, 3, 1),
    Sketcher.Constraint("Coincident", 3, 2, 0, 1),
    Sketcher.Constraint("Coincident", 4, 2, 5, 2),
    Sketcher.Constraint("Coincident", 5, 1, 6, 1),
    Sketcher.Constraint("Coincident", 6, 2, 7, 1),
    Sketcher.Constraint("Coincident", 7, 2, 4, 1),
    Sketcher.Constraint("Coincident", 8, 2, 9, 2),
    Sketcher.Constraint("Coincident", 9, 1, 10, 1),
    Sketcher.Constraint("Coincident", 10, 2, 11, 1),
    Sketcher.Constraint("Coincident", 11, 2, 8, 1),
    Sketcher.Constraint("Coincident", 12, 2, 13, 2),
    Sketcher.Constraint("Coincident", 13, 1, 14, 1),
    Sketcher.Constraint("Coincident", 14, 2, 15, 1),
    Sketcher.Constraint("Coincident", 15, 2, 12, 1),
    Sketcher.Constraint("Coincident", 16, 2, 17, 2),
    Sketcher.Constraint("Coincident", 17, 1, 18, 1),
    Sketcher.Constraint("Coincident", 18, 2, 19, 1),
    Sketcher.Constraint("Coincident", 19, 2, 16, 1),
    Sketcher.Constraint("Coincident", 20, 2, 21, 2),
    Sketcher.Constraint("Coincident", 21, 1, 22, 1),
    Sketcher.Constraint("Coincident", 22, 2, 23, 1),
    Sketcher.Constraint("Coincident", 23, 2, 20, 1),
    Sketcher.Constraint("Coincident", 24, 2, 25, 2),
    Sketcher.Constraint("Coincident", 25, 1, 26, 1),
    Sketcher.Constraint("Coincident", 26, 2, 27, 1),
    Sketcher.Constraint("Coincident", 27, 2, 24, 1),
    Sketcher.Constraint("Coincident", 28, 2, 29, 2),
    Sketcher.Constraint("Coincident", 29, 1, 30, 1),
    Sketcher.Constraint("Coincident", 30, 2, 31, 1),
    Sketcher.Constraint("Coincident", 31, 2, 28, 1),
    Sketcher.Constraint("Horizontal", 0),
    Sketcher.Constraint("Horizontal", 2),
    Sketcher.Constraint("Vertical", 8),
    Sketcher.Constraint("Vertical", 10),
    Sketcher.Constraint("Horizontal", 16),
    Sketcher.Constraint("Horizontal", 18),
    Sketcher.Constraint("Vertical", 24),
    Sketcher.Constraint("Vertical", 26),
    Sketcher.Constraint("Coincident", 1, 3, -1, 1),
    Sketcher.Constraint("Coincident", 3, 3, -1, 1),
    Sketcher.Constraint("Coincident", 5, 3, -1, 1),
    Sketcher.Constraint("Coincident", 7, 3, -1, 1),
    Sketcher.Constraint("Coincident", 9, 3, -1, 1),
    Sketcher.Constraint("Coincident", 11, 3, -1, 1),
    Sketcher.Constraint("Coincident", 13, 3, -1, 1),
    Sketcher.Constraint("Coincident", 15, 3, -1, 1),
    Sketcher.Constraint("Coincident", 17, 3, -1, 1),
    Sketcher.Constraint("Coincident", 19, 3, -1, 1),
    Sketcher.Constraint("Coincident", 21, 3, -1, 1),
    Sketcher.Constraint("Coincident", 23, 3, -1, 1),
    Sketcher.Constraint("Coincident", 25, 3, -1, 1),
    Sketcher.Constraint("Coincident", 27, 3, -1, 1),
    Sketcher.Constraint("Coincident", 29, 3, -1, 1),
    Sketcher.Constraint("Coincident", 31, 3, -1, 1),
    Sketcher.Constraint("Equal", 1, 5),
    Sketcher.Constraint("Equal", 3, 7),
    Sketcher.Constraint("Equal", 5, 9),
    Sketcher.Constraint("Equal", 7, 11),
    Sketcher.Constraint("Equal", 9, 13),
    Sketcher.Constraint("Equal", 11, 15),
    Sketcher.Constraint("Equal", 13, 17),
    Sketcher.Constraint("Equal", 15, 19),
    Sketcher.Constraint("Equal", 17, 21),
    Sketcher.Constraint("Equal", 19, 23),
    Sketcher.Constraint("Equal", 21, 25),
    Sketcher.Constraint("Equal", 23, 27),
    Sketcher.Constraint("Equal", 25, 29),
    Sketcher.Constraint("Equal", 27, 31),
    Sketcher.Constraint("Parallel", 4, 6),
    Sketcher.Constraint("Perpendicular", 6, 12),
    Sketcher.Constraint("Parallel", 12, 14),
    Sketcher.Constraint("Perpendicular", 14, 20),
    Sketcher.Constraint("Parallel", 20, 22),
    Sketcher.Constraint("Perpendicular", 22, 28),
    Sketcher.Constraint("Parallel", 28, 30),
    Sketcher.Constraint("Horizontal", 8, 2, 9, 1),
    Sketcher.Constraint("Horizontal", 5, 1, 12, 2),
    Sketcher.Constraint("Horizontal", 4, 2, 13, 1),
    Sketcher.Constraint("Horizontal", 7, 2, 14, 2),
    Sketcher.Constraint("Horizontal", 2, 2, 16, 2),
    Sketcher.Constraint("Horizontal", 3, 2, 17, 1),
    Sketcher.Constraint("Horizontal", 24, 2, 25, 1),
    Sketcher.Constraint("Horizontal", 21, 1, 28, 2),
    Sketcher.Constraint("Horizontal", 20, 2, 29, 1),
    Sketcher.Constraint("Vertical", 0, 2, 1, 1),
    Sketcher.Constraint("Vertical", 13, 1, 20, 2),
    Sketcher.Constraint("Vertical", 12, 2, 21, 1),
    Sketcher.Constraint("Vertical", 10, 2, 24, 2),
    Sketcher.Constraint("Equal", 18, 8),
    Sketcher.Constraint("Equal", 4, 6),
    Sketcher.Constraint("Radius", 3, Q("0.45 in")),
    Sketcher.Constraint("DistanceY", 1, 1, 0, 2, Q("0.065 in")),
    Sketcher.Constraint("Radius", 1, Q("3.840245 mm")),
    Sketcher.Constraint("DistanceX", -1, 1, 4, 2, Q("3.2357 mm")),
])
pad2 = body.newObject("PartDesign::Pad", "Pad001")
pad2.Profile = sketch6
pad2.Length = Q("0.438 in")

doc.recompute()
